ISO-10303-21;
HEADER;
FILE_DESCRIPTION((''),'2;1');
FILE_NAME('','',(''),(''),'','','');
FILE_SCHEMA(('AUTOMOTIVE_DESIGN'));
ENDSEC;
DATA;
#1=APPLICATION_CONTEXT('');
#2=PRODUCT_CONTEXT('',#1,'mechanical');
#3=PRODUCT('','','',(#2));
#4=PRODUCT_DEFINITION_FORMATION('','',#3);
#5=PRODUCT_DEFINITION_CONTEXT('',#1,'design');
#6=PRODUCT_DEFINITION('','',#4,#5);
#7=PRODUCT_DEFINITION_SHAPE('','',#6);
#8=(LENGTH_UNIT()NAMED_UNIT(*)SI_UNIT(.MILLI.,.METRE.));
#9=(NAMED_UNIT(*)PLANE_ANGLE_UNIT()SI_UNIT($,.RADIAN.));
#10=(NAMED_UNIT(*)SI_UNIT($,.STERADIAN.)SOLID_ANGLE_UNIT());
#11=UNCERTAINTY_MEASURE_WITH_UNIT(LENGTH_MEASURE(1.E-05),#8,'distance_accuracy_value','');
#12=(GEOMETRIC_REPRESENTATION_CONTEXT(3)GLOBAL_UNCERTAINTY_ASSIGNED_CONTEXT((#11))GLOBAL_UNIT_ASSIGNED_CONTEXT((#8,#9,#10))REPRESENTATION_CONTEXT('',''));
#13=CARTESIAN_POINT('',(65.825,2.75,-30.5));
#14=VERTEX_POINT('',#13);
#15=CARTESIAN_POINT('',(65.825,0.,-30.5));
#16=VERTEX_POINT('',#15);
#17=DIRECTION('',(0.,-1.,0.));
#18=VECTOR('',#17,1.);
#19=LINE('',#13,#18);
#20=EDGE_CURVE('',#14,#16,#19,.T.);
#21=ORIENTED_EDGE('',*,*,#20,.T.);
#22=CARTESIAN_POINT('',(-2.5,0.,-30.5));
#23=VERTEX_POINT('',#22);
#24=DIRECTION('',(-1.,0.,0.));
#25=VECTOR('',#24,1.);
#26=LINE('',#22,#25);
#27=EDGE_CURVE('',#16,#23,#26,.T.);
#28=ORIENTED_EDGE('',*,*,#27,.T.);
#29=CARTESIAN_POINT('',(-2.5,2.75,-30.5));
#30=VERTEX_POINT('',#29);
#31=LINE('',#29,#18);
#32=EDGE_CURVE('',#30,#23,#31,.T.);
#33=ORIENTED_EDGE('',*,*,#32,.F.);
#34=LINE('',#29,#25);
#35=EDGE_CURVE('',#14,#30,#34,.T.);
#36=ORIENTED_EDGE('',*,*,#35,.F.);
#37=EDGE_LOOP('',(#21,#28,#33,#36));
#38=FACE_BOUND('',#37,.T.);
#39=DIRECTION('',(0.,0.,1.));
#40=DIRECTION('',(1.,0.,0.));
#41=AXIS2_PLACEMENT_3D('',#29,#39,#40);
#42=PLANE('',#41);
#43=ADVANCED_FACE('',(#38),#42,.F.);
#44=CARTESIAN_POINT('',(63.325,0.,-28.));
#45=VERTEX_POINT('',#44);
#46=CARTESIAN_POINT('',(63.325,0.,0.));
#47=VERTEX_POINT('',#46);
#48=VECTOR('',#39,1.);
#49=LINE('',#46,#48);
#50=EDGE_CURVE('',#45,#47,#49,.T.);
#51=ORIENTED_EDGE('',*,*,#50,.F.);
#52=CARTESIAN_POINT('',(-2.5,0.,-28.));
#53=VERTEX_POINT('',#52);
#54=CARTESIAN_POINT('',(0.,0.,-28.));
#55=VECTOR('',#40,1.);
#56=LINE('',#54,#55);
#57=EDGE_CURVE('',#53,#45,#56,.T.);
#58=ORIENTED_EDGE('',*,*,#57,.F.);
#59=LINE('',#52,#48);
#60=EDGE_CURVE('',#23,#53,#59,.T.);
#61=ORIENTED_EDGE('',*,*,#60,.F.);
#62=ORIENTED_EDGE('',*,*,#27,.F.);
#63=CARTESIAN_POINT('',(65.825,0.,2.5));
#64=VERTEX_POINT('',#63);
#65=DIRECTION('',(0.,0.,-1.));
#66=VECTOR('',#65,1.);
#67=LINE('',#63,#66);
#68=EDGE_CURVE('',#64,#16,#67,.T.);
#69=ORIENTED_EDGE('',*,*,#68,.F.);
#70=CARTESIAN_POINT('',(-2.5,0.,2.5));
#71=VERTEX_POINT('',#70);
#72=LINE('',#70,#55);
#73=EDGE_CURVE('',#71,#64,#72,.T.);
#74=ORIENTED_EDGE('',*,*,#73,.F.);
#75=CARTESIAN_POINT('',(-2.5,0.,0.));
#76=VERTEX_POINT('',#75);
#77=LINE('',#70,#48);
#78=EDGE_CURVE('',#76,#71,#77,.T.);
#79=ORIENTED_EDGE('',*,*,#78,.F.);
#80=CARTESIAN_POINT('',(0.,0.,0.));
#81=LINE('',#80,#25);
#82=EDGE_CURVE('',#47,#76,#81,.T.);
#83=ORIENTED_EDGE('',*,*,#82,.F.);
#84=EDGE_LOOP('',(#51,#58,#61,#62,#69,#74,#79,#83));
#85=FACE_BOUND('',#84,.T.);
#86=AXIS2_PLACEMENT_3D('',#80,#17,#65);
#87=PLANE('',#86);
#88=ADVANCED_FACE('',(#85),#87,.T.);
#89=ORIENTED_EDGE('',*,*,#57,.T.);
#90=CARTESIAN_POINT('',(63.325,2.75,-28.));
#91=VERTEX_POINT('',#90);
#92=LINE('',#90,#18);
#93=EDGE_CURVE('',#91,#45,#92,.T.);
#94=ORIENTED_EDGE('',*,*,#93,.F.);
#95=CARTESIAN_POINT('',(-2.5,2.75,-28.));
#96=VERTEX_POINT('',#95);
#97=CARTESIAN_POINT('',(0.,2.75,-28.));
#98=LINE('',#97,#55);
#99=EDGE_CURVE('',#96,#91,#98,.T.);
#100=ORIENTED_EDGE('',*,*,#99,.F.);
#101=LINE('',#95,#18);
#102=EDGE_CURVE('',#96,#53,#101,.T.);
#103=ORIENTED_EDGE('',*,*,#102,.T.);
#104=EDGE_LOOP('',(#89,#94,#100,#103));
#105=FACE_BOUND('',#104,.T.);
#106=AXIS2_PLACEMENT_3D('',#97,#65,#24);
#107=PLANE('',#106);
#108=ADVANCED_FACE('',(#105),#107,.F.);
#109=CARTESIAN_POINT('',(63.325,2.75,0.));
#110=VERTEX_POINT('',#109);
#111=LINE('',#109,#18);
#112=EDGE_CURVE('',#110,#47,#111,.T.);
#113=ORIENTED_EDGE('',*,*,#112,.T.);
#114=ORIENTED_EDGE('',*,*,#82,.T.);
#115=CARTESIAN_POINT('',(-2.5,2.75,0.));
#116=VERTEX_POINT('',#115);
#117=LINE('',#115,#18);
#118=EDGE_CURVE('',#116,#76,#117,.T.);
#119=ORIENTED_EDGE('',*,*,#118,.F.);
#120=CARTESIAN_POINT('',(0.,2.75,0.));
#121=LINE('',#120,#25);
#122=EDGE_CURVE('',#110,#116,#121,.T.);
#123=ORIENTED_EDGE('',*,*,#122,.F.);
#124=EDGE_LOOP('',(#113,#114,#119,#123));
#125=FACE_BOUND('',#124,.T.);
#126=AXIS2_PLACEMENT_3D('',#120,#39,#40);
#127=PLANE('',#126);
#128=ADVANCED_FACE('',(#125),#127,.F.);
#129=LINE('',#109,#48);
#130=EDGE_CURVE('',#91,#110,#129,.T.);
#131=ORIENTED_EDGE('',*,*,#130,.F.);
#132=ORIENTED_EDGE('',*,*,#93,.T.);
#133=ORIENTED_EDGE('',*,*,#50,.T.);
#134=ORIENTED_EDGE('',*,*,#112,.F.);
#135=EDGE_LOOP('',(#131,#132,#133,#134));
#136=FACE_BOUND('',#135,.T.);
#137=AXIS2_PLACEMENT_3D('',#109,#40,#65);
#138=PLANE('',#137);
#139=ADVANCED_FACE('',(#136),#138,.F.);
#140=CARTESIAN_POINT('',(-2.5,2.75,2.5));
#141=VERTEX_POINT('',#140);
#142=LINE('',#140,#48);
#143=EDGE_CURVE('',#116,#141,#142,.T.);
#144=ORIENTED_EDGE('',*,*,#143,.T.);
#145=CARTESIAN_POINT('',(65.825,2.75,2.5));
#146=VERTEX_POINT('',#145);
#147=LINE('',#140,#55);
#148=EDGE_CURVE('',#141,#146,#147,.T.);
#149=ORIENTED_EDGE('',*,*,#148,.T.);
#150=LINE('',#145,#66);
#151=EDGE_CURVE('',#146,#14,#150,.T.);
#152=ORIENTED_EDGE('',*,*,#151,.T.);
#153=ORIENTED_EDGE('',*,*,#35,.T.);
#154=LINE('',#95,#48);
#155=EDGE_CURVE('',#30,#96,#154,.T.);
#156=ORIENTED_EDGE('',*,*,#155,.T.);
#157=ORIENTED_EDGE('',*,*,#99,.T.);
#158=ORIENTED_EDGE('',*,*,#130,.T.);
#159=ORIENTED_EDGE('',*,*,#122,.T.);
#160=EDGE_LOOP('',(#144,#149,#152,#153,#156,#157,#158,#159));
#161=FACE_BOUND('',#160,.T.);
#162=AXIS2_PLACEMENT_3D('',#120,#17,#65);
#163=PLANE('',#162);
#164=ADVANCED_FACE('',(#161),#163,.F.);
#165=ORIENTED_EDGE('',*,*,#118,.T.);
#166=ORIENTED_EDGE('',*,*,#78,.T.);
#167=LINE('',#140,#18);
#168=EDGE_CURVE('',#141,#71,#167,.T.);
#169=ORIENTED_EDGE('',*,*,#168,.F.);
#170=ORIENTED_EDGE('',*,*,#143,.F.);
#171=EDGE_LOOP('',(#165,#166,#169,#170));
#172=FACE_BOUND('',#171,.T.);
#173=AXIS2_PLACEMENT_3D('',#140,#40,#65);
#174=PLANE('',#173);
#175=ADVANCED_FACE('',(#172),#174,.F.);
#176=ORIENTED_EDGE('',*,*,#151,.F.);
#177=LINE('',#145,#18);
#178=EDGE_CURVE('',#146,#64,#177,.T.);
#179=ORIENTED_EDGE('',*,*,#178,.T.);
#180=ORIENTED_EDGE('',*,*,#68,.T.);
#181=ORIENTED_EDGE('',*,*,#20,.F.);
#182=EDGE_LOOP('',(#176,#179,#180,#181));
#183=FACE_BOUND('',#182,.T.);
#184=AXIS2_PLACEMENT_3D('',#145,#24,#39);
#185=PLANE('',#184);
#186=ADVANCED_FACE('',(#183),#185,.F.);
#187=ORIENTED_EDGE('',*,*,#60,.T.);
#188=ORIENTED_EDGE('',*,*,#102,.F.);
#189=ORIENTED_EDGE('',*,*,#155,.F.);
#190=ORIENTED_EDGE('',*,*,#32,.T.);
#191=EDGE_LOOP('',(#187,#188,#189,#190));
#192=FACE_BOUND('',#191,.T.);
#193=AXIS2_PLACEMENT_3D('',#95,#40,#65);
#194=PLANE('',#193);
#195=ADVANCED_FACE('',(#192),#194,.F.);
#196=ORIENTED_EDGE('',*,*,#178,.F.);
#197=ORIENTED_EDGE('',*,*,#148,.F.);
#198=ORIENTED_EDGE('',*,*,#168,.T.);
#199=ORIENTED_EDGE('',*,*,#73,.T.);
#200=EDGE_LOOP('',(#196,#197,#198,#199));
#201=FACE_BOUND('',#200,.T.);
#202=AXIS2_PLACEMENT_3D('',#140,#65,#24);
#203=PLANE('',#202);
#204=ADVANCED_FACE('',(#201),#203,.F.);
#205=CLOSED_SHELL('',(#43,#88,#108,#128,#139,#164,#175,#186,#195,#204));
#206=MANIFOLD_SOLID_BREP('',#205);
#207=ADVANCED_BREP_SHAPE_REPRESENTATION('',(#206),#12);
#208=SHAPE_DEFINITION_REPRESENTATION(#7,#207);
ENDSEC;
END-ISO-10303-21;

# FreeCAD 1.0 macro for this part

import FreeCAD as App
import Part
import Sketcher
from FreeCAD import Vector


def add_polygon(sketch, points):
    """Adds a closed chain of lines whose ends are joined by coincident constraints."""
    first, n = sketch.GeometryCount, len(points)
    for a, b in zip(points, points[1:] + points[:1]):
        sketch.addGeometry(Part.LineSegment(App.Vector(*a, 0), App.Vector(*b, 0)), False)
    for i in range(n):
        sketch.addConstraint(Sketcher.Constraint("Coincident", first + i, 2, first + (i + 1) % n, 1))

doc = App.newDocument("Part")
params = doc.addObject("Spreadsheet::Sheet", "Params")
for row, (alias, value) in enumerate([
    ("sketch1_height", "33 mm"),
    ("sketch1_height2", "28 mm"),
    ("pad1_length", "2.75 mm"),
], start=1):
    params.set(f"A{row}", alias)
    params.set(f"B{row}", "=" + value)
    params.setAlias(f"B{row}", alias)

body = doc.addObject("PartDesign::Body", "Body")

# Sketch on XZ plane
sketch1 = doc.addObject("Sketcher::SketchObject", "Sketch")
body.addObject(sketch1)
sketch1.AttachmentSupport = (doc.XZ_Plane, [""])
sketch1.MapMode = "FlatFace"
add_polygon(sketch1, [(-2.5, 0), (-2.5, 2.5), (65.825, 2.5), (65.825, -30.5), (-2.5, -30.5), (-2.5, -28), (63.325, -28), (63.325, 0)])  # lines 0-7
sketch1.addConstraint(Sketcher.Constraint("Vertical", 0))
sketch1.addConstraint(Sketcher.Constraint("Horizontal", 1))
sketch1.addConstraint(Sketcher.Constraint("Vertical", 2))
sketch1.addConstraint(Sketcher.Constraint("Horizontal", 3))
sketch1.addConstraint(Sketcher.Constraint("Vertical", 4))
sketch1.addConstraint(Sketcher.Constraint("Horizontal", 5))
sketch1.addConstraint(Sketcher.Constraint("Vertical", 6))
sketch1.addConstraint(Sketcher.Constraint("Horizontal", 7))
sketch1.addConstraint(Sketcher.Constraint("PointOnObject", 6, 2, -1))
sketch1.addConstraint(Sketcher.Constraint("Vertical", 0, 2, 3, 2))
sketch1.addConstraint(Sketcher.Constraint("Equal", 0, 4))
sketch1.addConstraint(Sketcher.Constraint("DistanceY", 2, 2, 2, 1, 33.0))
sketch1.addConstraint(Sketcher.Constraint("DistanceY", 6, 1, 6, 2, 28.0))
sketch1.addConstraint(Sketcher.Constraint("DistanceX", 0, 2, -1, 1, 2.5))
sketch1.addConstraint(Sketcher.Constraint("DistanceX", 5, 2, 2, 2, 2.5))
sketch1.addConstraint(Sketcher.Constraint("DistanceX", 1, 1, 1, 2, 68.325))
sketch1.setExpression("Constraints[19]", "Params.sketch1_height")
sketch1.setExpression("Constraints[20]", "Params.sketch1_height2")
pad1 = doc.addObject("PartDesign::Pad", "Pad")
body.addObject(pad1)
pad1.Profile = sketch1
pad1.setExpression("Length", "Params.pad1_length")
pad1.Reversed = True

doc.recompute()
